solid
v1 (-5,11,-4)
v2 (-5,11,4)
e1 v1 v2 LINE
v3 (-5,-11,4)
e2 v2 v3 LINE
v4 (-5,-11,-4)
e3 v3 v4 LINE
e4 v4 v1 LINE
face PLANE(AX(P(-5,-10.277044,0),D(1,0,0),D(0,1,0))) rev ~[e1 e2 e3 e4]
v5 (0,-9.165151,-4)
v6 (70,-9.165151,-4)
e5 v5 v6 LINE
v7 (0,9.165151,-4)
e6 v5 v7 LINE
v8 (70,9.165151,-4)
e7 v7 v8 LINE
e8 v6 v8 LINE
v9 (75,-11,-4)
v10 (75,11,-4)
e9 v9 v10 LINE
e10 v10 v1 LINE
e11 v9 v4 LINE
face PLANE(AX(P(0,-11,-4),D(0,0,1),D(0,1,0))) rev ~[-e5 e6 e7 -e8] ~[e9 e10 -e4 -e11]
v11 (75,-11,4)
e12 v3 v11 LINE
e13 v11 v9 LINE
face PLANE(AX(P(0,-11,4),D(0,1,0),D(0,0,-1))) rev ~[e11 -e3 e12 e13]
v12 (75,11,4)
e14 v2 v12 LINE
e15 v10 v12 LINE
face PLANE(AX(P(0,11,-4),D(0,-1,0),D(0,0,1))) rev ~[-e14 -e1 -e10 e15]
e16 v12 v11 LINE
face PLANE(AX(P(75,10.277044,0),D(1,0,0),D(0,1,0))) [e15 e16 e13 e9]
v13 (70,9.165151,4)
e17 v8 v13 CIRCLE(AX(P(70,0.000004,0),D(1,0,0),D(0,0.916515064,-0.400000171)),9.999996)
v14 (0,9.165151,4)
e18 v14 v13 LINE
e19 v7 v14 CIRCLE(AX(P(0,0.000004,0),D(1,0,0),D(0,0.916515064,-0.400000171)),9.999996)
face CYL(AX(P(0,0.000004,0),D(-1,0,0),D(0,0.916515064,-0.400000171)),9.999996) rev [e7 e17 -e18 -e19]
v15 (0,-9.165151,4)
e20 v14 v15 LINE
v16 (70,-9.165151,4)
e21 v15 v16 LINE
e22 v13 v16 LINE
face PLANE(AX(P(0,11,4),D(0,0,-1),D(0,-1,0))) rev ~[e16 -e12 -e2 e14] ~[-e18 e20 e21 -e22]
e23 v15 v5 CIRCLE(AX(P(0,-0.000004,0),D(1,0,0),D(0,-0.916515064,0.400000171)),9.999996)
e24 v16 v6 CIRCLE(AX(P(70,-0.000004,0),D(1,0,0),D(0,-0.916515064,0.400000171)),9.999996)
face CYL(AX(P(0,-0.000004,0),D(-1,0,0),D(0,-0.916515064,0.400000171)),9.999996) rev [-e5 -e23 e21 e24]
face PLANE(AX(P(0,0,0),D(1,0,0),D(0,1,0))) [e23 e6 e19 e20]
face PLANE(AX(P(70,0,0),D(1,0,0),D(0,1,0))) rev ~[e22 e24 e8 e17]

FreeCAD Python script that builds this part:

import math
import FreeCAD as App
import Part
import Sketcher
from FreeCAD import Vector


def add_polygon(sketch, points):
    """Adds a closed chain of lines whose ends are joined by coincident constraints."""
    first, n = sketch.GeometryCount, len(points)
    for a, b in zip(points, points[1:] + points[:1]):
        sketch.addGeometry(Part.LineSegment(App.Vector(*a, 0), App.Vector(*b, 0)), False)
    for i in range(n):
        sketch.addConstraint(Sketcher.Constraint("Coincident", first + i, 2, first + (i + 1) % n, 1))

doc = App.newDocument("Part")
body = doc.addObject("PartDesign::Body", "Body")

# Sketch on YZ plane
sketch1 = body.newObject("Sketcher::SketchObject", "Sketch")
sketch1.AttachmentSupport = (doc.getObject("YZ_Plane"), [""])
sketch1.MapMode = "FlatFace"
add_polygon(sketch1, [(-11, -4), (11, -4), (11, 4), (-11, 4)])  # lines 0-3
sketch1.addConstraint([
    Sketcher.Constraint("Horizontal", 0),
    Sketcher.Constraint("Vertical", 1),
    Sketcher.Constraint("Horizontal", 2),
    Sketcher.Constraint("Vertical", 3),
    Sketcher.Constraint("Symmetric", 0, 2, 2, 2, -1, 1),
    Sketcher.Constraint("DistanceX", 0, 1, 0, 2, 22.0),
    Sketcher.Constraint("DistanceY", 1, 1, 1, 2, 8.0),
])
pad1 = body.newObject("PartDesign::Pad", "Pad")
pad1.Profile = sketch1
pad1.Length = 5
pad1.Reversed = True

# Sketch on YZ plane
sketch2 = body.newObject("Sketcher::SketchObject", "Sketch001")
sketch2.AttachmentSupport = (doc.getObject("YZ_Plane"), [""])
sketch2.MapMode = "FlatFace"
add_polygon(sketch2, [(11, -4), (11, 4), (-11, 4), (-11, -4)])  # lines 0-3
sketch2.addConstraint([
    Sketcher.Constraint("Vertical", 0),
    Sketcher.Constraint("Horizontal", 1),
    Sketcher.Constraint("Vertical", 2),
    Sketcher.Constraint("Horizontal", 3),
    Sketcher.Constraint("Symmetric", 0, 2, 2, 2, -1, 1),
    Sketcher.Constraint("DistanceX", 1, 2, 1, 1, 22.0),
    Sketcher.Constraint("DistanceY", 0, 1, 0, 2, 8.0),
])
pad2 = body.newObject("PartDesign::Pad", "Pad001")
pad2.Profile = sketch2
pad2.Length = 75

# Sketch on YZ plane
sketch3 = body.newObject("Sketcher::SketchObject", "Sketch002")
sketch3.AttachmentSupport = (doc.getObject("YZ_Plane"), [""])
sketch3.MapMode = "FlatFace"
sketch3.addGeometry([
    Part.LineSegment(Vector(-9, -4, 0), Vector(9, -4, 0)),
    Part.ArcOfCircle(Part.Circle(Vector(0, 0, 0), Vector(0, 0, 1), 10), math.radians(-24), math.radians(24)),
    Part.LineSegment(Vector(9, 4, 0), Vector(-9, 4, 0)),
    Part.ArcOfCircle(Part.Circle(Vector(0, 0, 0), Vector(0, 0, 1), 10), math.radians(156), math.radians(204)),
], False)
sketch3.addConstraint([
    Sketcher.Constraint("Coincident", 0, 2, 1, 1),
    Sketcher.Constraint("Coincident", 1, 2, 2, 1),
    Sketcher.Constraint("Coincident", 2, 2, 3, 1),
    Sketcher.Constraint("Coincident", 3, 2, 0, 1),
    Sketcher.Constraint("Horizontal", 0),
    Sketcher.Constraint("Horizontal", 2),
    Sketcher.Constraint("Coincident", 1, 3, -1, 1),
    Sketcher.Constraint("Coincident", 3, 3, -1, 1),
    Sketcher.Constraint("Equal", 1, 3),
    Sketcher.Constraint("Vertical", 0, 2, 1, 2),
    Sketcher.Constraint("DistanceY", 0, 2, -1, 1, 4.0),
    Sketcher.Constraint("DistanceX", 0, 1, 0, 2, 18.330302),
])
pocket1 = body.newObject("PartDesign::Pocket", "Pocket")
pocket1.Profile = sketch3
pocket1.Length = 70
pocket1.Reversed = True

doc.recompute()
